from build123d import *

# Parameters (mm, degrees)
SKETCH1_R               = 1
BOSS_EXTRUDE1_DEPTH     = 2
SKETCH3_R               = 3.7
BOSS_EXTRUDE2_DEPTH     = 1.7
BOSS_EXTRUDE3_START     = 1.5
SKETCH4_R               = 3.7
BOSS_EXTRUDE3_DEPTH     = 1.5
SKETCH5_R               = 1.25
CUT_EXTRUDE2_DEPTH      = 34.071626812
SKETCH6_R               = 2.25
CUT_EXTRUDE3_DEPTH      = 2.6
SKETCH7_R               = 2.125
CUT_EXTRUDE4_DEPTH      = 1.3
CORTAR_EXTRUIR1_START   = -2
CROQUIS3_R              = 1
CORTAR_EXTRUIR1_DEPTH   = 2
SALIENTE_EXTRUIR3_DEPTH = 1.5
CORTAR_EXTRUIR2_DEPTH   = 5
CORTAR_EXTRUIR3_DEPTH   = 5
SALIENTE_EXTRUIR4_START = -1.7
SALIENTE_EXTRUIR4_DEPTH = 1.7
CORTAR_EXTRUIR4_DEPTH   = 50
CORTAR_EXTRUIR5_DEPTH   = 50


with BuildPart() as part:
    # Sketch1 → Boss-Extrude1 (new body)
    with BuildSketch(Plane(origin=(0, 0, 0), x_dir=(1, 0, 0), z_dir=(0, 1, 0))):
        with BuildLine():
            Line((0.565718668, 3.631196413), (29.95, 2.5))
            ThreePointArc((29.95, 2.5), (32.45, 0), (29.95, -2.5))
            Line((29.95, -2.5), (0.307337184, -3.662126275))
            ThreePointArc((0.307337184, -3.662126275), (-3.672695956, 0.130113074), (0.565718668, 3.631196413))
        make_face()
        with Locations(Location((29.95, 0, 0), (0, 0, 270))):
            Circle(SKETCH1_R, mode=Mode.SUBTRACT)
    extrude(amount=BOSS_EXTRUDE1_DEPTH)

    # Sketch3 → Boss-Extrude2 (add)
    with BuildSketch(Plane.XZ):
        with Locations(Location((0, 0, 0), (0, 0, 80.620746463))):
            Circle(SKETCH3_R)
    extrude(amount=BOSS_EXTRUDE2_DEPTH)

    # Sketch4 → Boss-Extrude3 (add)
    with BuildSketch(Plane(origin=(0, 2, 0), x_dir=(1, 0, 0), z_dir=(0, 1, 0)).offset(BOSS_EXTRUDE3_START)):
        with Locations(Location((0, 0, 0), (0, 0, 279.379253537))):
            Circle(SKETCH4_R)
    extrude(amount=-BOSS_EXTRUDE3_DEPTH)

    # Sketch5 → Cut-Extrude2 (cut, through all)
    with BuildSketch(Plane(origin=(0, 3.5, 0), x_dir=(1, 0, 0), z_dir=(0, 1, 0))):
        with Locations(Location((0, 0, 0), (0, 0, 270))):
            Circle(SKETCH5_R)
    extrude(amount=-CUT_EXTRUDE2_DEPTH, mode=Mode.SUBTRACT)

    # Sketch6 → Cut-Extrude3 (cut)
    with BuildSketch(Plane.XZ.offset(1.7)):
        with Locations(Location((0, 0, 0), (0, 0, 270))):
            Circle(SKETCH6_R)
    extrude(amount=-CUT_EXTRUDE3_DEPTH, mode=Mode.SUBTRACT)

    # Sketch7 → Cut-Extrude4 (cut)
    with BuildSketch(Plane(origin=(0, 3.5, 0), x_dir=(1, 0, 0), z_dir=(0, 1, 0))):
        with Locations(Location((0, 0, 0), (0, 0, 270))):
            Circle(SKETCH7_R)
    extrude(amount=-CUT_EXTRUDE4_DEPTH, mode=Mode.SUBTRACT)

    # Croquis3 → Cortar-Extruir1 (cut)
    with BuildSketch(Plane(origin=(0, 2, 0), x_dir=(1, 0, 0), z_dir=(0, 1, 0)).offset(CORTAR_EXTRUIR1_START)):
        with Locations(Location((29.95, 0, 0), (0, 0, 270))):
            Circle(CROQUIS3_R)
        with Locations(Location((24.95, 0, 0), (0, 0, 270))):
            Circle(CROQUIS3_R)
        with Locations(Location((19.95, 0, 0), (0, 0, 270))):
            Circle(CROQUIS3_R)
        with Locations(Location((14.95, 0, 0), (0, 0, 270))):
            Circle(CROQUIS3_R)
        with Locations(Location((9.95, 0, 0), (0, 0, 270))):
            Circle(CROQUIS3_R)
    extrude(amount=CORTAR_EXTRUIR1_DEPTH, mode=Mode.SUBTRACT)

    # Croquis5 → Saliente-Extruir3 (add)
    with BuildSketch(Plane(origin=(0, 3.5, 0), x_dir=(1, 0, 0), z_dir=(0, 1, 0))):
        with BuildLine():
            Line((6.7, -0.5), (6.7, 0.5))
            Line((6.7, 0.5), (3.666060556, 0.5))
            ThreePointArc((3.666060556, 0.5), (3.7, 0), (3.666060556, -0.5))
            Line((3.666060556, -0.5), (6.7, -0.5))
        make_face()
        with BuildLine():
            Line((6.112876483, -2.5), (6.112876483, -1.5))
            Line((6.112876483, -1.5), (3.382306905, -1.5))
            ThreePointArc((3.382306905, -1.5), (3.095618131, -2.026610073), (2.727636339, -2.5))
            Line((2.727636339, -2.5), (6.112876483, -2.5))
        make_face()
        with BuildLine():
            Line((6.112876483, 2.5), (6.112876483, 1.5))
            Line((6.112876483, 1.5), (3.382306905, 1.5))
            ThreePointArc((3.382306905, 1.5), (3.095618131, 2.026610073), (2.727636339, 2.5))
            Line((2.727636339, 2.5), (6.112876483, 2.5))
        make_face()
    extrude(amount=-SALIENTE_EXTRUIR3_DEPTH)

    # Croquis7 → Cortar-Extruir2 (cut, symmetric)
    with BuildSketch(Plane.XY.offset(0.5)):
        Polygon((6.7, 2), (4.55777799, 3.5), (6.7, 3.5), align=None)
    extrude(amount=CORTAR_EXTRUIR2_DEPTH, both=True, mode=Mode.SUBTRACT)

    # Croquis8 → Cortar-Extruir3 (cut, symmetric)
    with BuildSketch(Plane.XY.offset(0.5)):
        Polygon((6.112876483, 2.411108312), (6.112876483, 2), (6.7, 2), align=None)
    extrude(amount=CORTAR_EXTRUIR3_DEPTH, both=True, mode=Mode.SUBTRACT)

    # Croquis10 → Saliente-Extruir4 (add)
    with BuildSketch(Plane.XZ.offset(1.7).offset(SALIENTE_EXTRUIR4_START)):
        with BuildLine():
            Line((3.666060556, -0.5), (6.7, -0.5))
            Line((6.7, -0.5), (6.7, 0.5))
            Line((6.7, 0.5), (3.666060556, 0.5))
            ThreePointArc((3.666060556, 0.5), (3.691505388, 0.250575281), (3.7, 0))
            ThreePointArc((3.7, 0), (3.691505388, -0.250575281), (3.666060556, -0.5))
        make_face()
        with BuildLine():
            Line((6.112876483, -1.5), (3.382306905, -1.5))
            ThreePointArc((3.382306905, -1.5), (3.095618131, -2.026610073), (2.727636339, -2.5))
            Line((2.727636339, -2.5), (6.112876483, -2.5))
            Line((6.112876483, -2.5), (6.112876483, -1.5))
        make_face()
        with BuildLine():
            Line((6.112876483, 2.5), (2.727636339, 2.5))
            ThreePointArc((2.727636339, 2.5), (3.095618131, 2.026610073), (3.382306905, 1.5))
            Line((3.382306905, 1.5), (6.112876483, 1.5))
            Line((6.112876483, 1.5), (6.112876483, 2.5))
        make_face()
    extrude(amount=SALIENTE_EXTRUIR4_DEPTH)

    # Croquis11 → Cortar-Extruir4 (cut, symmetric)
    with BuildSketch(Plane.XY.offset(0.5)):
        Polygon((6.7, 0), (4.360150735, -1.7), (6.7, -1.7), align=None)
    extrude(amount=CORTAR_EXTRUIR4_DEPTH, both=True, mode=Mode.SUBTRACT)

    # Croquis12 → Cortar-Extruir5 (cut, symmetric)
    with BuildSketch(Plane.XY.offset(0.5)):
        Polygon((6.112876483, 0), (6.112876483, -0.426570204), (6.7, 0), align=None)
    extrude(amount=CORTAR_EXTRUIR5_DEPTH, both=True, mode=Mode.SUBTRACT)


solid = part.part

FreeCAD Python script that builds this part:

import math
import FreeCAD as App
import Part
import Sketcher
Q = App.Units.Quantity

doc = App.newDocument("Part")
body = doc.addObject("PartDesign::Body", "Body")

# Sketch on XZ plane
sketch1 = body.newObject("Sketcher::SketchObject", "Sketch")
sketch1.AttachmentSupport = (doc.getObject("XZ_Plane"), [""])
sketch1.MapMode = "FlatFace"
sketch1.addGeometry(Part.LineSegment(App.Vector(29.9, -2.5, 0), App.Vector(0.6, -3.6, 0)), False)
sketch1.addGeometry(Part.ArcOfCircle(Part.Circle(App.Vector(0, 0, 0), App.Vector(0, 0, 1), 3.7), math.radians(85), math.radians(279)), False)
sketch1.addGeometry(Part.LineSegment(App.Vector(0.3, 3.7, 0), App.Vector(29.9, 2.5, 0)), False)
sketch1.addGeometry(Part.ArcOfCircle(Part.Circle(App.Vector(29.9, 0, 0), App.Vector(0, 0, 1), 2.5), math.radians(-90), math.radians(90)), False)
sketch1.addGeometry(Part.Circle(App.Vector(29.9, 0, 0), App.Vector(0, 0, 1), 1), False)
sketch1.addConstraint(Sketcher.Constraint("Coincident", 0, 2, 1, 2))
sketch1.addConstraint(Sketcher.Constraint("Coincident", 1, 1, 2, 1))
sketch1.addConstraint(Sketcher.Constraint("Coincident", 2, 2, 3, 2))
sketch1.addConstraint(Sketcher.Constraint("Coincident", 3, 1, 0, 1))
sketch1.addConstraint(Sketcher.Constraint("Coincident", 1, 3, -1, 1))
sketch1.addConstraint(Sketcher.Constraint("Coincident", 4, 3, 3, 3))
sketch1.addConstraint(Sketcher.Constraint("Symmetric", 2, 2, 3, 1, -1))
sketch1.addConstraint(Sketcher.Constraint("Vertical", 4, 3, 2, 2))
sketch1.addConstraint(Sketcher.Constraint("Diameter", 4, Q("2 mm")))
sketch1.addConstraint(Sketcher.Constraint("Radius", 3, Q("2.5 mm")))
sketch1.addConstraint(Sketcher.Constraint("Radius", 1, Q("3.675 mm")))
sketch1.addConstraint(Sketcher.Constraint("DistanceX", -1, 1, 3, 3, Q("29.95 mm")))
sketch1.addConstraint(Sketcher.Constraint("DistanceX", -1, 1, 0, 2, Q("0.565719 mm")))
sketch1.addConstraint(Sketcher.Constraint("DistanceX", 1, 1, 0, 2, Q("0.258381 mm")))
pad1 = body.newObject("PartDesign::Pad", "Pad")
pad1.Profile = sketch1
pad1.Length = 2
pad1.Reversed = True

# Sketch on XZ plane
sketch2 = body.newObject("Sketcher::SketchObject", "Sketch001")
sketch2.AttachmentSupport = (doc.getObject("XZ_Plane"), [""])
sketch2.MapMode = "FlatFace"
sketch2.addGeometry(Part.Circle(App.Vector(0, 0, 0), App.Vector(0, 0, 1), 3.7), False)
sketch2.addConstraint(Sketcher.Constraint("Coincident", 0, 3, -1, 1))
sketch2.addConstraint(Sketcher.Constraint("Diameter", 0, Q("7.4 mm")))
pad2 = body.newObject("PartDesign::Pad", "Pad001")
pad2.Profile = sketch2
pad2.Length = 1.7

# Sketch on XZ plane
sketch3 = body.newObject("Sketcher::SketchObject", "Sketch002")
sketch3.AttachmentSupport = (doc.getObject("XZ_Plane"), [""])
sketch3.MapMode = "FlatFace"
sketch3.AttachmentOffset = App.Placement(App.Vector(0, 0, -3.5), App.Rotation())
sketch3.addGeometry(Part.Circle(App.Vector(0, 0, 0), App.Vector(0, 0, 1), 3.7), False)
sketch3.addConstraint(Sketcher.Constraint("Coincident", 0, 3, -1, 1))
sketch3.addConstraint(Sketcher.Constraint("Diameter", 0, Q("7.4 mm")))
pad3 = body.newObject("PartDesign::Pad", "Pad002")
pad3.Profile = sketch3
pad3.Length = 1.5

# Sketch on XZ plane
sketch4 = body.newObject("Sketcher::SketchObject", "Sketch003")
sketch4.AttachmentSupport = (doc.getObject("XZ_Plane"), [""])
sketch4.MapMode = "FlatFace"
sketch4.AttachmentOffset = App.Placement(App.Vector(0, 0, -3.5), App.Rotation())
sketch4.addGeometry(Part.Circle(App.Vector(0, 0, 0), App.Vector(0, 0, 1), 1.2), False)
sketch4.addConstraint(Sketcher.Constraint("Coincident", 0, 3, -1, 1))
sketch4.addConstraint(Sketcher.Constraint("Diameter", 0, Q("2.5 mm")))
pocket1 = body.newObject("PartDesign::Pocket", "Pocket")
pocket1.Profile = sketch4
pocket1.Type = "ThroughAll"
pocket1.Reversed = True

# Sketch on XZ plane
sketch5 = body.newObject("Sketcher::SketchObject", "Sketch004")
sketch5.AttachmentSupport = (doc.getObject("XZ_Plane"), [""])
sketch5.MapMode = "FlatFace"
sketch5.AttachmentOffset = App.Placement(App.Vector(0, 0, 1.7), App.Rotation())
sketch5.addGeometry(Part.Circle(App.Vector(0, 0, 0), App.Vector(0, 0, 1), 2.2), False)
sketch5.addConstraint(Sketcher.Constraint("Coincident", 0, 3, -1, 1))
sketch5.addConstraint(Sketcher.Constraint("Diameter", 0, Q("4.5 mm")))
pocket2 = body.newObject("PartDesign::Pocket", "Pocket001")
pocket2.Profile = sketch5
pocket2.Length = 2.6

# Sketch on XZ plane
sketch6 = body.newObject("Sketcher::SketchObject", "Sketch005")
sketch6.AttachmentSupport = (doc.getObject("XZ_Plane"), [""])
sketch6.MapMode = "FlatFace"
sketch6.AttachmentOffset = App.Placement(App.Vector(0, 0, -3.5), App.Rotation())
sketch6.addGeometry(Part.Circle(App.Vector(0, 0, 0), App.Vector(0, 0, 1), 2.1), False)
sketch6.addConstraint(Sketcher.Constraint("Coincident", 0, 3, -1, 1))
sketch6.addConstraint(Sketcher.Constraint("Diameter", 0, Q("4.25 mm")))
pocket3 = body.newObject("PartDesign::Pocket", "Pocket002")
pocket3.Profile = sketch6
pocket3.Length = 1.3
pocket3.Reversed = True

# Sketch on XZ plane
sketch7 = body.newObject("Sketcher::SketchObject", "Sketch006")
sketch7.AttachmentSupport = (doc.getObject("XZ_Plane"), [""])
sketch7.MapMode = "FlatFace"
sketch7.addGeometry(Part.Circle(App.Vector(29.9, 0, 0), App.Vector(0, 0, 1), 1), False)
sketch7.addGeometry(Part.Circle(App.Vector(24.9, 0, 0), App.Vector(0, 0, 1), 1), False)
sketch7.addGeometry(Part.Circle(App.Vector(19.9, 0, 0), App.Vector(0, 0, 1), 1), False)
sketch7.addGeometry(Part.Circle(App.Vector(14.9, 0, 0), App.Vector(0, 0, 1), 1), False)
sketch7.addGeometry(Part.Circle(App.Vector(9.9, 0, 0), App.Vector(0, 0, 1), 1), False)
sketch7.addConstraint(Sketcher.Constraint("Equal", 0, 1))
sketch7.addConstraint(Sketcher.Constraint("Equal", 1, 2))
sketch7.addConstraint(Sketcher.Constraint("Equal", 2, 3))
sketch7.addConstraint(Sketcher.Constraint("Equal", 3, 4))
sketch7.addConstraint(Sketcher.Constraint("PointOnObject", 0, 3, -1))
sketch7.addConstraint(Sketcher.Constraint("PointOnObject", 1, 3, -1))
sketch7.addConstraint(Sketcher.Constraint("PointOnObject", 2, 3, -1))
sketch7.addConstraint(Sketcher.Constraint("PointOnObject", 3, 3, -1))
sketch7.addConstraint(Sketcher.Constraint("PointOnObject", 4, 3, -1))
sketch7.addConstraint(Sketcher.Constraint("Diameter", 0, Q("2 mm")))
sketch7.addConstraint(Sketcher.Constraint("DistanceX", 1, 3, 0, 3, Q("5 mm")))
sketch7.addConstraint(Sketcher.Constraint("DistanceX", 2, 3, 1, 3, Q("5 mm")))
sketch7.addConstraint(Sketcher.Constraint("DistanceX", 3, 3, 2, 3, Q("5 mm")))
sketch7.addConstraint(Sketcher.Constraint("DistanceX", 4, 3, 3, 3, Q("5 mm")))
sketch7.addConstraint(Sketcher.Constraint("DistanceX", -1, 1, 0, 3, Q("29.95 mm")))
pocket4 = body.newObject("PartDesign::Pocket", "Pocket003")
pocket4.Profile = sketch7
pocket4.Length = 2

# Sketch on XZ plane
sketch8 = body.newObject("Sketcher::SketchObject", "Sketch007")
sketch8.AttachmentSupport = (doc.getObject("XZ_Plane"), [""])
sketch8.MapMode = "FlatFace"
sketch8.AttachmentOffset = App.Placement(App.Vector(0, 0, -3.5), App.Rotation())
sketch8.addGeometry(Part.LineSegment(App.Vector(6.7, 0.5, 0), App.Vector(6.7, -0.5, 0)), False)
sketch8.addGeometry(Part.LineSegment(App.Vector(6.7, -0.5, 0), App.Vector(3.7, -0.5, 0)), False)
sketch8.addGeometry(Part.ArcOfCircle(Part.Circle(App.Vector(0, 0, 0), App.Vector(0, 0, 1), 3.7), math.radians(-7.77), math.radians(7.77)), False)
sketch8.addGeometry(Part.LineSegment(App.Vector(3.7, 0.5, 0), App.Vector(6.7, 0.5, 0)), False)
sketch8.addGeometry(Part.LineSegment(App.Vector(6.1, 2.5, 0), App.Vector(6.1, 1.5, 0)), False)
sketch8.addGeometry(Part.LineSegment(App.Vector(6.1, 1.5, 0), App.Vector(3.4, 1.5, 0)), False)
sketch8.addGeometry(Part.ArcOfCircle(Part.Circle(App.Vector(0, 0, 0), App.Vector(0, 0, 1), 3.7), math.radians(23.92), math.radians(42.51)), False)
sketch8.addGeometry(Part.LineSegment(App.Vector(2.7, 2.5, 0), App.Vector(6.1, 2.5, 0)), False)
sketch8.addGeometry(Part.LineSegment(App.Vector(6.1, -1.5, 0), App.Vector(6.1, -2.5, 0)), False)
sketch8.addGeometry(Part.LineSegment(App.Vector(6.1, -2.5, 0), App.Vector(2.7, -2.5, 0)), False)
sketch8.addGeometry(Part.ArcOfCircle(Part.Circle(App.Vector(0, 0, 0), App.Vector(0, 0, 1), 3.7), math.radians(-42.51), math.radians(-23.92)), False)
sketch8.addGeometry(Part.LineSegment(App.Vector(3.4, -1.5, 0), App.Vector(6.1, -1.5, 0)), False)
sketch8.addConstraint(Sketcher.Constraint("Coincident", 0, 2, 1, 1))
sketch8.addConstraint(Sketcher.Constraint("Coincident", 1, 2, 2, 1))
sketch8.addConstraint(Sketcher.Constraint("Coincident", 2, 2, 3, 1))
sketch8.addConstraint(Sketcher.Constraint("Coincident", 3, 2, 0, 1))
sketch8.addConstraint(Sketcher.Constraint("Coincident", 4, 2, 5, 1))
sketch8.addConstraint(Sketcher.Constraint("Coincident", 5, 2, 6, 1))
sketch8.addConstraint(Sketcher.Constraint("Coincident", 6, 2, 7, 1))
sketch8.addConstraint(Sketcher.Constraint("Coincident", 7, 2, 4, 1))
sketch8.addConstraint(Sketcher.Constraint("Coincident", 8, 2, 9, 1))
sketch8.addConstraint(Sketcher.Constraint("Coincident", 9, 2, 10, 1))
sketch8.addConstraint(Sketcher.Constraint("Coincident", 10, 2, 11, 1))
sketch8.addConstraint(Sketcher.Constraint("Coincident", 11, 2, 8, 1))
sketch8.addConstraint(Sketcher.Constraint("Vertical", 0))
sketch8.addConstraint(Sketcher.Constraint("Horizontal", 1))
sketch8.addConstraint(Sketcher.Constraint("Horizontal", 3))
sketch8.addConstraint(Sketcher.Constraint("Vertical", 4))
sketch8.addConstraint(Sketcher.Constraint("Horizontal", 5))
sketch8.addConstraint(Sketcher.Constraint("Horizontal", 7))
sketch8.addConstraint(Sketcher.Constraint("Vertical", 8))
sketch8.addConstraint(Sketcher.Constraint("Horizontal", 9))
sketch8.addConstraint(Sketcher.Constraint("Horizontal", 11))
sketch8.addConstraint(Sketcher.Constraint("Coincident", 2, 3, -1, 1))
sketch8.addConstraint(Sketcher.Constraint("Coincident", 6, 3, -1, 1))
sketch8.addConstraint(Sketcher.Constraint("Coincident", 10, 3, -1, 1))
sketch8.addConstraint(Sketcher.Constraint("Equal", 2, 6))
sketch8.addConstraint(Sketcher.Constraint("Equal", 6, 10))
sketch8.addConstraint(Sketcher.Constraint("Symmetric", 7, 2, 8, 2, -1))
sketch8.addConstraint(Sketcher.Constraint("Vertical", 1, 2, 2, 2))
sketch8.addConstraint(Sketcher.Constraint("Vertical", 5, 2, 10, 2))
sketch8.addConstraint(Sketcher.Constraint("Equal", 0, 4))
sketch8.addConstraint(Sketcher.Constraint("Radius", 2, Q("3.7 mm")))
sketch8.addConstraint(Sketcher.Constraint("DistanceY", 0, 2, 0, 1, Q("1 mm")))
sketch8.addConstraint(Sketcher.Constraint("DistanceY", 3, 2, 4, 2, Q("1 mm")))
sketch8.addConstraint(Sketcher.Constraint("DistanceX", -1, 1, 0, 2, Q("6.7 mm")))
sketch8.addConstraint(Sketcher.Constraint("DistanceX", 5, 2, 5, 1, Q("2.73057 mm")))
pad4 = body.newObject("PartDesign::Pad", "Pad003")
pad4.Profile = sketch8
pad4.Length = 1.5

# Sketch on XY plane
sketch9 = body.newObject("Sketcher::SketchObject", "Sketch008")
sketch9.AttachmentSupport = (doc.getObject("XY_Plane"), [""])
sketch9.MapMode = "FlatFace"
sketch9.AttachmentOffset = App.Placement(App.Vector(0, 0, 0.5), App.Rotation())
sketch9.addGeometry(Part.LineSegment(App.Vector(4.6, 3.5, 0), App.Vector(6.7, 2, 0)), False)
sketch9.addGeometry(Part.LineSegment(App.Vector(6.7, 2, 0), App.Vector(6.7, 3.5, 0)), False)
sketch9.addGeometry(Part.LineSegment(App.Vector(6.7, 3.5, 0), App.Vector(4.6, 3.5, 0)), False)
sketch9.addConstraint(Sketcher.Constraint("Coincident", 0, 2, 1, 1))
sketch9.addConstraint(Sketcher.Constraint("Coincident", 1, 2, 2, 1))
sketch9.addConstraint(Sketcher.Constraint("Coincident", 2, 2, 0, 1))
sketch9.addConstraint(Sketcher.Constraint("Vertical", 1))
sketch9.addConstraint(Sketcher.Constraint("Horizontal", 2))
sketch9.addConstraint(Sketcher.Constraint("Angle", 0, Q("-35 deg")))
sketch9.addConstraint(Sketcher.Constraint("DistanceY", 1, 1, 1, 2, Q("1.5 mm")))
sketch9.addConstraint(Sketcher.Constraint("DistanceY", -1, 1, 0, 2, Q("2 mm")))
sketch9.addConstraint(Sketcher.Constraint("DistanceX", -1, 1, 0, 2, Q("6.7 mm")))
pocket5 = body.newObject("PartDesign::Pocket", "Pocket004")
pocket5.Profile = sketch9
pocket5.Length = 10
pocket5.Midplane = True

# Sketch on XY plane
sketch10 = body.newObject("Sketcher::SketchObject", "Sketch009")
sketch10.AttachmentSupport = (doc.getObject("XY_Plane"), [""])
sketch10.MapMode = "FlatFace"
sketch10.AttachmentOffset = App.Placement(App.Vector(0, 0, 0.5), App.Rotation())
sketch10.addGeometry(Part.LineSegment(App.Vector(6.11, 2.41, 0), App.Vector(6.11, 2, 0)), False)
sketch10.addGeometry(Part.LineSegment(App.Vector(6.11, 2, 0), App.Vector(6.7, 2, 0)), False)
sketch10.addGeometry(Part.LineSegment(App.Vector(6.7, 2, 0), App.Vector(6.11, 2.41, 0)), False)
sketch10.addConstraint(Sketcher.Constraint("Coincident", 0, 2, 1, 1))
sketch10.addConstraint(Sketcher.Constraint("Coincident", 1, 2, 2, 1))
sketch10.addConstraint(Sketcher.Constraint("Coincident", 2, 2, 0, 1))
sketch10.addConstraint(Sketcher.Constraint("Vertical", 0))
sketch10.addConstraint(Sketcher.Constraint("Horizontal", 1))
sketch10.addConstraint(Sketcher.Constraint("Angle", 2, Q("145 deg")))
sketch10.addConstraint(Sketcher.Constraint("DistanceY", -1, 1, 0, 2, Q("2 mm")))
sketch10.addConstraint(Sketcher.Constraint("DistanceX", -1, 1, 1, 2, Q("6.7 mm")))
sketch10.addConstraint(Sketcher.Constraint("DistanceY", 0, 2, 0, 1, Q("0.411108 mm")))
pocket6 = body.newObject("PartDesign::Pocket", "Pocket005")
pocket6.Profile = sketch10
pocket6.Length = 10
pocket6.Midplane = True

# Sketch on XZ plane
sketch11 = body.newObject("Sketcher::SketchObject", "Sketch010")
sketch11.AttachmentSupport = (doc.getObject("XZ_Plane"), [""])
sketch11.MapMode = "FlatFace"
sketch11.addGeometry(Part.LineSegment(App.Vector(3.7, -0.5, 0), App.Vector(6.7, -0.5, 0)), False)
sketch11.addGeometry(Part.LineSegment(App.Vector(6.7, -0.5, 0), App.Vector(6.7, 0.5, 0)), False)
sketch11.addGeometry(Part.LineSegment(App.Vector(6.7, 0.5, 0), App.Vector(3.7, 0.5, 0)), False)
sketch11.addGeometry(Part.ArcOfCircle(Part.Circle(App.Vector(0, 0, 0), App.Vector(0, 0, 1), 3.7), math.radians(0), math.radians(7.77)), False)
sketch11.addGeometry(Part.ArcOfCircle(Part.Circle(App.Vector(0, 0, 0), App.Vector(0, 0, 1), 3.7), math.radians(-7.77), math.radians(0)), False)
sketch11.addGeometry(Part.LineSegment(App.Vector(6.1, -1.5, 0), App.Vector(3.4, -1.5, 0)), False)
sketch11.addGeometry(Part.ArcOfCircle(Part.Circle(App.Vector(0, 0, 0), App.Vector(0, 0, 1), 3.7), math.radians(-42.51), math.radians(-23.92)), False)
sketch11.addGeometry(Part.LineSegment(App.Vector(2.7, -2.5, 0), App.Vector(6.1, -2.5, 0)), False)
sketch11.addGeometry(Part.LineSegment(App.Vector(6.1, -2.5, 0), App.Vector(6.1, -1.5, 0)), False)
sketch11.addGeometry(Part.LineSegment(App.Vector(6.1, 2.5, 0), App.Vector(2.7, 2.5, 0)), False)
sketch11.addGeometry(Part.ArcOfCircle(Part.Circle(App.Vector(0, 0, 0), App.Vector(0, 0, 1), 3.7), math.radians(23.92), math.radians(42.51)), False)
sketch11.addGeometry(Part.LineSegment(App.Vector(3.4, 1.5, 0), App.Vector(6.1, 1.5, 0)), False)
sketch11.addGeometry(Part.LineSegment(App.Vector(6.1, 1.5, 0), App.Vector(6.1, 2.5, 0)), False)
sketch11.addConstraint(Sketcher.Constraint("Coincident", 0, 2, 1, 1))
sketch11.addConstraint(Sketcher.Constraint("Coincident", 1, 2, 2, 1))
sketch11.addConstraint(Sketcher.Constraint("Coincident", 2, 2, 3, 2))
sketch11.addConstraint(Sketcher.Constraint("Tangent", 3, 1, 4, 2))
sketch11.addConstraint(Sketcher.Constraint("Coincident", 4, 1, 0, 1))
sketch11.addConstraint(Sketcher.Constraint("Coincident", 5, 2, 6, 2))
sketch11.addConstraint(Sketcher.Constraint("Coincident", 6, 1, 7, 1))
sketch11.addConstraint(Sketcher.Constraint("Coincident", 7, 2, 8, 1))
sketch11.addConstraint(Sketcher.Constraint("Coincident", 8, 2, 5, 1))
sketch11.addConstraint(Sketcher.Constraint("Coincident", 9, 2, 10, 2))
sketch11.addConstraint(Sketcher.Constraint("Coincident", 10, 1, 11, 1))
sketch11.addConstraint(Sketcher.Constraint("Coincident", 11, 2, 12, 1))
sketch11.addConstraint(Sketcher.Constraint("Coincident", 12, 2, 9, 1))
sketch11.addConstraint(Sketcher.Constraint("Horizontal", 0))
sketch11.addConstraint(Sketcher.Constraint("Vertical", 1))
sketch11.addConstraint(Sketcher.Constraint("Horizontal", 2))
sketch11.addConstraint(Sketcher.Constraint("Horizontal", 5))
sketch11.addConstraint(Sketcher.Constraint("Horizontal", 7))
sketch11.addConstraint(Sketcher.Constraint("Vertical", 8))
sketch11.addConstraint(Sketcher.Constraint("Horizontal", 9))
sketch11.addConstraint(Sketcher.Constraint("Horizontal", 11))
sketch11.addConstraint(Sketcher.Constraint("Vertical", 12))
sketch11.addConstraint(Sketcher.Constraint("Coincident", 3, 3, -1, 1))
sketch11.addConstraint(Sketcher.Constraint("Coincident", 6, 3, -1, 1))
sketch11.addConstraint(Sketcher.Constraint("Coincident", 10, 3, -1, 1))
sketch11.addConstraint(Sketcher.Constraint("Equal", 3, 4))
sketch11.addConstraint(Sketcher.Constraint("Equal", 4, 6))
sketch11.addConstraint(Sketcher.Constraint("Equal", 6, 10))
sketch11.addConstraint(Sketcher.Constraint("Symmetric", 8, 2, 11, 2, -1))
sketch11.addConstraint(Sketcher.Constraint("PointOnObject", 3, 1, -1))
sketch11.addConstraint(Sketcher.Constraint("Vertical", 2, 2, 4, 1))
sketch11.addConstraint(Sketcher.Constraint("Vertical", 6, 1, 9, 2))
sketch11.addConstraint(Sketcher.Constraint("Equal", 1, 8))
sketch11.addConstraint(Sketcher.Constraint("Radius", 3, Q("3.7 mm")))
sketch11.addConstraint(Sketcher.Constraint("DistanceY", 1, 1, 1, 2, Q("1 mm")))
sketch11.addConstraint(Sketcher.Constraint("DistanceX", 3, 1, 0, 2, Q("3 mm")))
sketch11.addConstraint(Sketcher.Constraint("DistanceY", 5, 2, 4, 1, Q("1 mm")))
sketch11.addConstraint(Sketcher.Constraint("DistanceX", 5, 2, 5, 1, Q("2.73057 mm")))
pad5 = body.newObject("PartDesign::Pad", "Pad004")
pad5.Profile = sketch11
pad5.Length = 1.7

# Sketch on XY plane
sketch12 = body.newObject("Sketcher::SketchObject", "Sketch011")
sketch12.AttachmentSupport = (doc.getObject("XY_Plane"), [""])
sketch12.MapMode = "FlatFace"
sketch12.AttachmentOffset = App.Placement(App.Vector(0, 0, 0.5), App.Rotation())
sketch12.addGeometry(Part.LineSegment(App.Vector(6.7, 0, 0), App.Vector(4.4, -1.7, 0)), False)
sketch12.addGeometry(Part.LineSegment(App.Vector(4.4, -1.7, 0), App.Vector(6.7, -1.7, 0)), False)
sketch12.addGeometry(Part.LineSegment(App.Vector(6.7, -1.7, 0), App.Vector(6.7, 0, 0)), False)
sketch12.addConstraint(Sketcher.Constraint("Coincident", 0, 2, 1, 1))
sketch12.addConstraint(Sketcher.Constraint("Coincident", 1, 2, 2, 1))
sketch12.addConstraint(Sketcher.Constraint("Coincident", 2, 2, 0, 1))
sketch12.addConstraint(Sketcher.Constraint("Horizontal", 1))
sketch12.addConstraint(Sketcher.Constraint("Vertical", 2))
sketch12.addConstraint(Sketcher.Constraint("PointOnObject", 2, 2, -1))
sketch12.addConstraint(Sketcher.Constraint("Angle", 0, Q("-144 deg")))
sketch12.addConstraint(Sketcher.Constraint("DistanceY", 2, 1, 2, 2, Q("1.7 mm")))
sketch12.addConstraint(Sketcher.Constraint("DistanceX", -1, 1, 1, 2, Q("6.7 mm")))
pocket7 = body.newObject("PartDesign::Pocket", "Pocket006")
pocket7.Profile = sketch12
pocket7.Length = 100
pocket7.Midplane = True

# Sketch on XY plane
sketch13 = body.newObject("Sketcher::SketchObject", "Sketch012")
sketch13.AttachmentSupport = (doc.getObject("XY_Plane"), [""])
sketch13.MapMode = "FlatFace"
sketch13.AttachmentOffset = App.Placement(App.Vector(0, 0, 0.5), App.Rotation())
sketch13.addGeometry(Part.LineSegment(App.Vector(6.11, 0, 0), App.Vector(6.11, -0.43, 0)), False)
sketch13.addGeometry(Part.LineSegment(App.Vector(6.11, -0.43, 0), App.Vector(6.7, 0, 0)), False)
sketch13.addGeometry(Part.LineSegment(App.Vector(6.7, 0, 0), App.Vector(6.11, 0, 0)), False)
sketch13.addConstraint(Sketcher.Constraint("Coincident", 0, 2, 1, 1))
sketch13.addConstraint(Sketcher.Constraint("Coincident", 1, 2, 2, 1))
sketch13.addConstraint(Sketcher.Constraint("Coincident", 2, 2, 0, 1))
sketch13.addConstraint(Sketcher.Constraint("Vertical", 0))
sketch13.addConstraint(Sketcher.Constraint("Horizontal", 2))
sketch13.addConstraint(Sketcher.Constraint("PointOnObject", 1, 2, -1))
sketch13.addConstraint(Sketcher.Constraint("Angle", 1, Q("36 deg")))
sketch13.addConstraint(Sketcher.Constraint("DistanceX", -1, 1, 1, 2, Q("6.7 mm")))
sketch13.addConstraint(Sketcher.Constraint("DistanceY", 0, 2, 0, 1, Q("0.42657 mm")))
pocket8 = body.newObject("PartDesign::Pocket", "Pocket007")
pocket8.Profile = sketch13
pocket8.Length = 100
pocket8.Midplane = True

doc.recompute()
